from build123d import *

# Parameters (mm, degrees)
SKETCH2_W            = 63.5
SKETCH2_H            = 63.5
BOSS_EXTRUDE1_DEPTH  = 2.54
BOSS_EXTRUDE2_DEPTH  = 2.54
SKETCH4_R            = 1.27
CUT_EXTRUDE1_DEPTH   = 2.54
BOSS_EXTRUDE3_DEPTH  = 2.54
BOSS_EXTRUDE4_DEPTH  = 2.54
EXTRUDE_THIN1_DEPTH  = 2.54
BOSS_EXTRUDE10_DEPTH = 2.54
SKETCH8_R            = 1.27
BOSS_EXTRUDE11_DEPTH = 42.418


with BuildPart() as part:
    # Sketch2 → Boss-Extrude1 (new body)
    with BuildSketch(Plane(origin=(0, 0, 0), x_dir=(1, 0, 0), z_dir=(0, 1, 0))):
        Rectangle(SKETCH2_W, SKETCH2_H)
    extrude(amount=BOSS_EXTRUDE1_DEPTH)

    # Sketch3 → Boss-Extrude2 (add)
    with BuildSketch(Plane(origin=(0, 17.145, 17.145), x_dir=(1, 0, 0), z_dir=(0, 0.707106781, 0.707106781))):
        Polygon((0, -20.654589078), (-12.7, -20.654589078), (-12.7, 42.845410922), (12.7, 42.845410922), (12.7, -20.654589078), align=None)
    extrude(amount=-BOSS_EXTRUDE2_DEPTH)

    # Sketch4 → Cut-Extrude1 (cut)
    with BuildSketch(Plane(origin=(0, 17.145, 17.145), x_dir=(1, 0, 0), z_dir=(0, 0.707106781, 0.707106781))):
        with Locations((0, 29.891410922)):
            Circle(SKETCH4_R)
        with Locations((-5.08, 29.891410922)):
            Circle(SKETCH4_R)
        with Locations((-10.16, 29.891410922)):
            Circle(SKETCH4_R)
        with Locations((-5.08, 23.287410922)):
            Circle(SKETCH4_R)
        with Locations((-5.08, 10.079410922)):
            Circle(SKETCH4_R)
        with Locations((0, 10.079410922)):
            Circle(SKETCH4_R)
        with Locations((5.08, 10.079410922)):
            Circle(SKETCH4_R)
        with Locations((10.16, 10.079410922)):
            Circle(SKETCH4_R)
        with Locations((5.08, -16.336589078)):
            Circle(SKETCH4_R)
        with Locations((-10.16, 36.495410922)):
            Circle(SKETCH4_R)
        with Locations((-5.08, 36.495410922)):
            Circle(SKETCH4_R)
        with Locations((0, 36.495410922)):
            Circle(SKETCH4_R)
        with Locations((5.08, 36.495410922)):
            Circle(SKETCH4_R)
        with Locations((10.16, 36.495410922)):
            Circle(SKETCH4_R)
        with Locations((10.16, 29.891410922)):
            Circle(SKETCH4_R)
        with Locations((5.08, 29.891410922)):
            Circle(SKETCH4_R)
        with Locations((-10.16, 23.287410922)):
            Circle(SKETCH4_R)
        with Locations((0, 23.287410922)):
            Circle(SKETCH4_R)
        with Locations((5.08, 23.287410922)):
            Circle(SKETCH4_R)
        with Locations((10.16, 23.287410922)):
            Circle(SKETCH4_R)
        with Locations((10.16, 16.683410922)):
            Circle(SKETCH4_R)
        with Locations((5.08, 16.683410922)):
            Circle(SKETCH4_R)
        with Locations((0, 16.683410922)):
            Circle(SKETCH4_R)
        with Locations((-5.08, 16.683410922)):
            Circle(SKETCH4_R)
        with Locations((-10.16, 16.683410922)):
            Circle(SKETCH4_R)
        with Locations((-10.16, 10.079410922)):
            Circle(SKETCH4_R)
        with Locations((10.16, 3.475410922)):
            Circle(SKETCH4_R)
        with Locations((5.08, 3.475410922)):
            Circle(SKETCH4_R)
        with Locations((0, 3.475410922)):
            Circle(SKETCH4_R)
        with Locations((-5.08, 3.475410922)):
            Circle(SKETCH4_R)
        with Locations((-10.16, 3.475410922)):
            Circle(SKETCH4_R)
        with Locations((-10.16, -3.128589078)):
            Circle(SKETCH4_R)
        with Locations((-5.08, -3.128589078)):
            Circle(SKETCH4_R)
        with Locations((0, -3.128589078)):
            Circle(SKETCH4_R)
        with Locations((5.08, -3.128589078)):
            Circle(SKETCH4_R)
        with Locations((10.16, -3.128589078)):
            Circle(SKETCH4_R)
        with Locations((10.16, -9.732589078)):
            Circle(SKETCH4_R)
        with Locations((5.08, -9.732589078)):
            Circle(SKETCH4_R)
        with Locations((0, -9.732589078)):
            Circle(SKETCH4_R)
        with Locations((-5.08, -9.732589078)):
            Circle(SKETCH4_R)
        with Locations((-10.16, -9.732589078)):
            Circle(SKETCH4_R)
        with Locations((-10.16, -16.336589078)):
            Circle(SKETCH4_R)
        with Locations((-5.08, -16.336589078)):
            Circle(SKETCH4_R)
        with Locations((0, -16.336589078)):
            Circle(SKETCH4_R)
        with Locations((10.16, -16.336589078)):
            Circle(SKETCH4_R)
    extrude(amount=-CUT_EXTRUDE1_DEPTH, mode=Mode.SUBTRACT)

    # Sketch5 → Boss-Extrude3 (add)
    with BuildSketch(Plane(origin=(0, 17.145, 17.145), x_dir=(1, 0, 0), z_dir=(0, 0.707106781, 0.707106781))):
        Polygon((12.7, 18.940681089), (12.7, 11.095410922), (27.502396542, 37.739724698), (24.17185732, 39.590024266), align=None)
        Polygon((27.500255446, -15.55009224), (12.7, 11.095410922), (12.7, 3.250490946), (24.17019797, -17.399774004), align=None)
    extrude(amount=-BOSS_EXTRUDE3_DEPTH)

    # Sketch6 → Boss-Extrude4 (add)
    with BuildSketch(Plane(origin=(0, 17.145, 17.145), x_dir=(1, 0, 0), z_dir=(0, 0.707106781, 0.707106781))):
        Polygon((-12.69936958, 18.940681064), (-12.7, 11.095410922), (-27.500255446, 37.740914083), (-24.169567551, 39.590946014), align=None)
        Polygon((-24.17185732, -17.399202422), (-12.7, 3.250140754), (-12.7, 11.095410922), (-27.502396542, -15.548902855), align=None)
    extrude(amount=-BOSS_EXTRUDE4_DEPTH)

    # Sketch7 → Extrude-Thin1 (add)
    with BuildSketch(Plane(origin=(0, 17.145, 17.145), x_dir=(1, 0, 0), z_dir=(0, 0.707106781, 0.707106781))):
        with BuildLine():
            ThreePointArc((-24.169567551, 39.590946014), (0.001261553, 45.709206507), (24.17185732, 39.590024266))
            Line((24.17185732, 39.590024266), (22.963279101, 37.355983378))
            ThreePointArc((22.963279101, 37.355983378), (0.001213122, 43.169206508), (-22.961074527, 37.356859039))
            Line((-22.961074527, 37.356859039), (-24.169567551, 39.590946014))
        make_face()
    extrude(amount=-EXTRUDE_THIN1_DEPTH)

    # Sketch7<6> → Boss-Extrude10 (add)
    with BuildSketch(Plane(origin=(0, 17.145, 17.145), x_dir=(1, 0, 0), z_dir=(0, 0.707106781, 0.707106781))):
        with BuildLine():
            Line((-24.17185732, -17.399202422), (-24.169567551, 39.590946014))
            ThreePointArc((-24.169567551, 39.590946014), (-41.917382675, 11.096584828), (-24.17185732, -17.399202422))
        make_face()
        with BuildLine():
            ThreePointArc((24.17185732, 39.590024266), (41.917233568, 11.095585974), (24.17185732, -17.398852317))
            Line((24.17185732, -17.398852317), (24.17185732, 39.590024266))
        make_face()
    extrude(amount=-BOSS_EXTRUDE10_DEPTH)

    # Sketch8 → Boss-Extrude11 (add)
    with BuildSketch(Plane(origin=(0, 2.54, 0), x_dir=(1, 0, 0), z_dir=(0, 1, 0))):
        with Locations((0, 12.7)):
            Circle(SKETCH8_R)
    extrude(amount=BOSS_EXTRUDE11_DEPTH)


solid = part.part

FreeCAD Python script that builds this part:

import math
import FreeCAD as App
import Part
import Sketcher
Q = App.Units.Quantity

doc = App.newDocument("Part")
body = doc.addObject("PartDesign::Body", "Body")

sketch1 = body.newObject("Sketcher::SketchObject", "Sketch")
sketch1.AttachmentSupport = (doc.getObject("XZ_Plane"), [""])
sketch1.MapMode = "FlatFace"
sketch1.addGeometry([
    Part.LineSegment(App.Vector(-31.75, -31.75, 0), App.Vector(-31.75, 31.75, 0)),
    Part.LineSegment(App.Vector(-31.75, 31.75, 0), App.Vector(31.75, 31.75, 0)),
    Part.LineSegment(App.Vector(31.75, 31.75, 0), App.Vector(31.75, -31.75, 0)),
    Part.LineSegment(App.Vector(31.75, -31.75, 0), App.Vector(-31.75, -31.75, 0)),
], False)
sketch1.addConstraint([
    Sketcher.Constraint("Coincident", 0, 2, 1, 1),
    Sketcher.Constraint("Coincident", 1, 2, 2, 1),
    Sketcher.Constraint("Coincident", 2, 2, 3, 1),
    Sketcher.Constraint("Coincident", 3, 2, 0, 1),
    Sketcher.Constraint("Vertical", 0),
    Sketcher.Constraint("Horizontal", 1),
    Sketcher.Constraint("Vertical", 2),
    Sketcher.Constraint("Horizontal", 3),
    Sketcher.Constraint("Symmetric", 0, 2, 2, 2, -1, 1),
    Sketcher.Constraint("Equal", 3, 0),
    Sketcher.Constraint("DistanceX", 1, 1, 1, 2, Q("2.5 in")),
])
pad1 = body.newObject("PartDesign::Pad", "Pad")
pad1.Profile = sketch1
pad1.Length = Q("0.1 in")
pad1.Reversed = True

sketch2 = body.newObject("Sketcher::SketchObject", "Sketch001")
sketch2.Placement = App.Placement(App.Vector(0, 17.145, 17.145), App.Rotation(App.Vector(1, 0, 0), App.Vector(0, 0.707106781, -0.707106781), App.Vector(0, 0.707106781, 0.707106781), "ZXY"))
sketch2.addGeometry([
    Part.LineSegment(App.Vector(-12.7, -20.654589, 0), App.Vector(12.7, -20.654589, 0)),
    Part.LineSegment(App.Vector(12.7, -20.654589, 0), App.Vector(12.7, 42.845411, 0)),
    Part.LineSegment(App.Vector(12.7, 42.845411, 0), App.Vector(-12.7, 42.845411, 0)),
    Part.LineSegment(App.Vector(-12.7, 42.845411, 0), App.Vector(-12.7, -20.654589, 0)),
], False)
sketch2.addConstraint([
    Sketcher.Constraint("Coincident", 0, 2, 1, 1),
    Sketcher.Constraint("Coincident", 1, 2, 2, 1),
    Sketcher.Constraint("Coincident", 2, 2, 3, 1),
    Sketcher.Constraint("Coincident", 3, 2, 0, 1),
    Sketcher.Constraint("Horizontal", 0),
    Sketcher.Constraint("Vertical", 1),
    Sketcher.Constraint("Horizontal", 2),
    Sketcher.Constraint("Vertical", 3),
    Sketcher.Constraint("DistanceX", 0, 1, 0, 2, Q("1 in")),
    Sketcher.Constraint("DistanceY", 1, 1, 1, 2, Q("2.5 in")),
    Sketcher.Constraint("DistanceX", -1, 1, 0, 2, Q("0.5 in")),
    Sketcher.Constraint("DistanceY", 0, 2, -1, 1, 20.654589),
])
pad2 = body.newObject("PartDesign::Pad", "Pad001")
pad2.Profile = sketch2
pad2.Length = Q("0.1 in")
pad2.Reversed = True

sketch3 = body.newObject("Sketcher::SketchObject", "Sketch002")
sketch3.Placement = App.Placement(App.Vector(0, 17.145, 17.145), App.Rotation(App.Vector(1, 0, 0), App.Vector(0, 0.707106781, -0.707106781), App.Vector(0, 0.707106781, 0.707106781), "ZXY"))
sketch3.addGeometry([
    Part.Circle(App.Vector(0, 29.891411, 0), App.Vector(0, 0, 1), 1.27),
    Part.Circle(App.Vector(-5.08, 29.891411, 0), App.Vector(0, 0, 1), 1.27),
    Part.Circle(App.Vector(-10.16, 29.891411, 0), App.Vector(0, 0, 1), 1.27),
    Part.Circle(App.Vector(-5.08, 23.287411, 0), App.Vector(0, 0, 1), 1.27),
    Part.Circle(App.Vector(-5.08, 10.079411, 0), App.Vector(0, 0, 1), 1.27),
    Part.Circle(App.Vector(0, 10.079411, 0), App.Vector(0, 0, 1), 1.27),
    Part.Circle(App.Vector(5.08, 10.079411, 0), App.Vector(0, 0, 1), 1.27),
    Part.Circle(App.Vector(10.16, 10.079411, 0), App.Vector(0, 0, 1), 1.27),
    Part.Circle(App.Vector(5.08, -16.336589, 0), App.Vector(0, 0, 1), 1.27),
    Part.Circle(App.Vector(-10.16, 36.495411, 0), App.Vector(0, 0, 1), 1.27),
    Part.Circle(App.Vector(-5.08, 36.495411, 0), App.Vector(0, 0, 1), 1.27),
    Part.Circle(App.Vector(0, 36.495411, 0), App.Vector(0, 0, 1), 1.27),
    Part.Circle(App.Vector(5.08, 36.495411, 0), App.Vector(0, 0, 1), 1.27),
    Part.Circle(App.Vector(10.16, 36.495411, 0), App.Vector(0, 0, 1), 1.27),
    Part.Circle(App.Vector(10.16, 29.891411, 0), App.Vector(0, 0, 1), 1.27),
    Part.Circle(App.Vector(5.08, 29.891411, 0), App.Vector(0, 0, 1), 1.27),
    Part.Circle(App.Vector(-10.16, 23.287411, 0), App.Vector(0, 0, 1), 1.27),
    Part.Circle(App.Vector(0, 23.287411, 0), App.Vector(0, 0, 1), 1.27),
    Part.Circle(App.Vector(5.08, 23.287411, 0), App.Vector(0, 0, 1), 1.27),
    Part.Circle(App.Vector(10.16, 23.287411, 0), App.Vector(0, 0, 1), 1.27),
    Part.Circle(App.Vector(10.16, 16.683411, 0), App.Vector(0, 0, 1), 1.27),
    Part.Circle(App.Vector(5.08, 16.683411, 0), App.Vector(0, 0, 1), 1.27),
    Part.Circle(App.Vector(0, 16.683411, 0), App.Vector(0, 0, 1), 1.27),
    Part.Circle(App.Vector(-5.08, 16.683411, 0), App.Vector(0, 0, 1), 1.27),
    Part.Circle(App.Vector(-10.16, 16.683411, 0), App.Vector(0, 0, 1), 1.27),
    Part.Circle(App.Vector(-10.16, 10.079411, 0), App.Vector(0, 0, 1), 1.27),
    Part.Circle(App.Vector(10.16, 3.475411, 0), App.Vector(0, 0, 1), 1.27),
    Part.Circle(App.Vector(5.08, 3.475411, 0), App.Vector(0, 0, 1), 1.27),
    Part.Circle(App.Vector(0, 3.475411, 0), App.Vector(0, 0, 1), 1.27),
    Part.Circle(App.Vector(-5.08, 3.475411, 0), App.Vector(0, 0, 1), 1.27),
    Part.Circle(App.Vector(-10.16, 3.475411, 0), App.Vector(0, 0, 1), 1.27),
    Part.Circle(App.Vector(-10.16, -3.128589, 0), App.Vector(0, 0, 1), 1.27),
    Part.Circle(App.Vector(-5.08, -3.128589, 0), App.Vector(0, 0, 1), 1.27),
    Part.Circle(App.Vector(0, -3.128589, 0), App.Vector(0, 0, 1), 1.27),
    Part.Circle(App.Vector(5.08, -3.128589, 0), App.Vector(0, 0, 1), 1.27),
    Part.Circle(App.Vector(10.16, -3.128589, 0), App.Vector(0, 0, 1), 1.27),
    Part.Circle(App.Vector(10.16, -9.732589, 0), App.Vector(0, 0, 1), 1.27),
    Part.Circle(App.Vector(5.08, -9.732589, 0), App.Vector(0, 0, 1), 1.27),
    Part.Circle(App.Vector(0, -9.732589, 0), App.Vector(0, 0, 1), 1.27),
    Part.Circle(App.Vector(-5.08, -9.732589, 0), App.Vector(0, 0, 1), 1.27),
    Part.Circle(App.Vector(-10.16, -9.732589, 0), App.Vector(0, 0, 1), 1.27),
    Part.Circle(App.Vector(-10.16, -16.336589, 0), App.Vector(0, 0, 1), 1.27),
    Part.Circle(App.Vector(-5.08, -16.336589, 0), App.Vector(0, 0, 1), 1.27),
    Part.Circle(App.Vector(0, -16.336589, 0), App.Vector(0, 0, 1), 1.27),
    Part.Circle(App.Vector(10.16, -16.336589, 0), App.Vector(0, 0, 1), 1.27),
], False)
sketch3.addConstraint([
    Sketcher.Constraint("Equal", 0, 1),
    Sketcher.Constraint("Equal", 1, 2),
    Sketcher.Constraint("Equal", 2, 3),
    Sketcher.Constraint("Equal", 3, 4),
    Sketcher.Constraint("Equal", 4, 5),
    Sketcher.Constraint("Equal", 5, 6),
    Sketcher.Constraint("Equal", 6, 7),
    Sketcher.Constraint("Equal", 7, 8),
    Sketcher.Constraint("Equal", 8, 9),
    Sketcher.Constraint("Equal", 9, 10),
    Sketcher.Constraint("Equal", 10, 11),
    Sketcher.Constraint("Equal", 11, 12),
    Sketcher.Constraint("Equal", 12, 13),
    Sketcher.Constraint("Equal", 13, 14),
    Sketcher.Constraint("Equal", 14, 15),
    Sketcher.Constraint("Equal", 15, 16),
    Sketcher.Constraint("Equal", 16, 17),
    Sketcher.Constraint("Equal", 17, 18),
    Sketcher.Constraint("Equal", 18, 19),
    Sketcher.Constraint("Equal", 19, 20),
    Sketcher.Constraint("Equal", 20, 21),
    Sketcher.Constraint("Equal", 21, 22),
    Sketcher.Constraint("Equal", 22, 23),
    Sketcher.Constraint("Equal", 23, 24),
    Sketcher.Constraint("Equal", 24, 25),
    Sketcher.Constraint("Equal", 25, 26),
    Sketcher.Constraint("Equal", 26, 27),
    Sketcher.Constraint("Equal", 27, 28),
    Sketcher.Constraint("Equal", 28, 29),
    Sketcher.Constraint("Equal", 29, 30),
    Sketcher.Constraint("Equal", 30, 31),
    Sketcher.Constraint("Equal", 31, 32),
    Sketcher.Constraint("Equal", 32, 33),
    Sketcher.Constraint("Equal", 33, 34),
    Sketcher.Constraint("Equal", 34, 35),
    Sketcher.Constraint("Equal", 35, 36),
    Sketcher.Constraint("Equal", 36, 37),
    Sketcher.Constraint("Equal", 37, 38),
    Sketcher.Constraint("Equal", 38, 39),
    Sketcher.Constraint("Equal", 39, 40),
    Sketcher.Constraint("Equal", 40, 41),
    Sketcher.Constraint("Equal", 41, 42),
    Sketcher.Constraint("Equal", 42, 43),
    Sketcher.Constraint("Equal", 43, 44),
    Sketcher.Constraint("Symmetric", 4, 3, 6, 3, -2),
    Sketcher.Constraint("Symmetric", 10, 3, 12, 3, -2),
    Sketcher.Constraint("Symmetric", 9, 3, 13, 3, -2),
    Sketcher.Constraint("Symmetric", 2, 3, 14, 3, -2),
    Sketcher.Constraint("Symmetric", 1, 3, 15, 3, -2),
    Sketcher.Constraint("Symmetric", 3, 3, 18, 3, -2),
    Sketcher.Constraint("Symmetric", 16, 3, 19, 3, -2),
    Sketcher.Constraint("Symmetric", 21, 3, 23, 3, -2),
    Sketcher.Constraint("Symmetric", 20, 3, 24, 3, -2),
    Sketcher.Constraint("Symmetric", 7, 3, 25, 3, -2),
    Sketcher.Constraint("Symmetric", 27, 3, 29, 3, -2),
    Sketcher.Constraint("Symmetric", 26, 3, 30, 3, -2),
    Sketcher.Constraint("Symmetric", 32, 3, 34, 3, -2),
    Sketcher.Constraint("Symmetric", 31, 3, 35, 3, -2),
    Sketcher.Constraint("Symmetric", 37, 3, 39, 3, -2),
    Sketcher.Constraint("Symmetric", 36, 3, 40, 3, -2),
    Sketcher.Constraint("Symmetric", 8, 3, 42, 3, -2),
    Sketcher.Constraint("Symmetric", 41, 3, 44, 3, -2),
    Sketcher.Constraint("PointOnObject", 0, 3, -2),
    Sketcher.Constraint("PointOnObject", 5, 3, -2),
    Sketcher.Constraint("PointOnObject", 11, 3, -2),
    Sketcher.Constraint("PointOnObject", 17, 3, -2),
    Sketcher.Constraint("PointOnObject", 22, 3, -2),
    Sketcher.Constraint("PointOnObject", 28, 3, -2),
    Sketcher.Constraint("PointOnObject", 33, 3, -2),
    Sketcher.Constraint("PointOnObject", 38, 3, -2),
    Sketcher.Constraint("PointOnObject", 43, 3, -2),
    Sketcher.Constraint("Horizontal", 0, 3, 1, 3),
    Sketcher.Constraint("Horizontal", 1, 3, 2, 3),
    Sketcher.Constraint("Horizontal", 4, 3, 5, 3),
    Sketcher.Constraint("Horizontal", 6, 3, 7, 3),
    Sketcher.Constraint("Horizontal", 9, 3, 10, 3),
    Sketcher.Constraint("Horizontal", 10, 3, 11, 3),
    Sketcher.Constraint("Horizontal", 3, 3, 16, 3),
    Sketcher.Constraint("Horizontal", 16, 3, 17, 3),
    Sketcher.Constraint("Horizontal", 20, 3, 21, 3),
    Sketcher.Constraint("Horizontal", 21, 3, 22, 3),
    Sketcher.Constraint("Horizontal", 26, 3, 27, 3),
    Sketcher.Constraint("Horizontal", 27, 3, 28, 3),
    Sketcher.Constraint("Horizontal", 31, 3, 32, 3),
    Sketcher.Constraint("Horizontal", 32, 3, 33, 3),
    Sketcher.Constraint("Horizontal", 36, 3, 37, 3),
    Sketcher.Constraint("Horizontal", 37, 3, 38, 3),
    Sketcher.Constraint("Horizontal", 8, 3, 41, 3),
    Sketcher.Constraint("Horizontal", 42, 3, 43, 3),
    Sketcher.Constraint("Vertical", 1, 3, 3, 3),
    Sketcher.Constraint("Vertical", 3, 3, 4, 3),
    Sketcher.Constraint("Vertical", 6, 3, 8, 3),
    Sketcher.Constraint("Vertical", 2, 3, 9, 3),
    Sketcher.Constraint("Vertical", 4, 3, 10, 3),
    Sketcher.Constraint("Vertical", 7, 3, 13, 3),
    Sketcher.Constraint("Vertical", 9, 3, 16, 3),
    Sketcher.Constraint("Vertical", 19, 3, 20, 3),
    Sketcher.Constraint("Vertical", 18, 3, 21, 3),
    Sketcher.Constraint("Vertical", 20, 3, 26, 3),
    Sketcher.Constraint("Vertical", 21, 3, 27, 3),
    Sketcher.Constraint("Vertical", 30, 3, 31, 3),
    Sketcher.Constraint("Vertical", 29, 3, 32, 3),
    Sketcher.Constraint("Vertical", 35, 3, 36, 3),
    Sketcher.Constraint("Vertical", 34, 3, 37, 3),
    Sketcher.Constraint("Vertical", 40, 3, 41, 3),
    Sketcher.Constraint("Diameter", 0, Q("0.1 in")),
    Sketcher.Constraint("DistanceX", 1, 3, -1, 1, Q("0.2 in")),
    Sketcher.Constraint("DistanceX", 2, 3, -1, 1, Q("0.4 in")),
    Sketcher.Constraint("DistanceY", 3, 3, 1, 3, Q("0.26 in")),
    Sketcher.Constraint("DistanceY", 4, 3, 3, 3, Q("0.52 in")),
    Sketcher.Constraint("DistanceY", 8, 3, 6, 3, Q("1.04 in")),
    Sketcher.Constraint("DistanceY", 2, 3, 9, 3, Q("0.26 in")),
    Sketcher.Constraint("DistanceY", 7, 3, 20, 3, Q("0.26 in")),
    Sketcher.Constraint("DistanceY", 26, 3, 7, 3, Q("0.26 in")),
    Sketcher.Constraint("DistanceY", 31, 3, 30, 3, Q("0.26 in")),
    Sketcher.Constraint("DistanceY", 36, 3, 35, 3, Q("0.26 in")),
    Sketcher.Constraint("DistanceY", -1, 1, 0, 3, 29.891411),
])
pocket1 = body.newObject("PartDesign::Pocket", "Pocket")
pocket1.Profile = sketch3
pocket1.Length = Q("0.1 in")

sketch4 = body.newObject("Sketcher::SketchObject", "Sketch003")
sketch4.Placement = App.Placement(App.Vector(0, 17.145, 17.145), App.Rotation(App.Vector(1, 0, 0), App.Vector(0, 0.707106781, -0.707106781), App.Vector(0, 0.707106781, 0.707106781), "ZXY"))
sketch4.addGeometry([
    Part.LineSegment(App.Vector(12.7, 18.940681, 0), App.Vector(12.7, 11.095411, 0)),
    Part.LineSegment(App.Vector(12.7, 11.095411, 0), App.Vector(27.502397, 37.739725, 0)),
    Part.LineSegment(App.Vector(27.502397, 37.739725, 0), App.Vector(24.171857, 39.590024, 0)),
    Part.LineSegment(App.Vector(24.171857, 39.590024, 0), App.Vector(12.7, 18.940681, 0)),
    Part.LineSegment(App.Vector(27.500255, -15.550092, 0), App.Vector(12.7, 11.095411, 0)),
    Part.LineSegment(App.Vector(12.7, 11.095411, 0), App.Vector(12.7, 3.250491, 0)),
    Part.LineSegment(App.Vector(12.7, 3.250491, 0), App.Vector(24.170198, -17.399774, 0)),
    Part.LineSegment(App.Vector(24.170198, -17.399774, 0), App.Vector(27.500255, -15.550092, 0)),
], False)
sketch4.addConstraint([
    Sketcher.Constraint("Coincident", 0, 2, 1, 1),
    Sketcher.Constraint("Coincident", 1, 2, 2, 1),
    Sketcher.Constraint("Coincident", 2, 2, 3, 1),
    Sketcher.Constraint("Coincident", 3, 2, 0, 1),
    Sketcher.Constraint("Coincident", 4, 2, 5, 1),
    Sketcher.Constraint("Coincident", 5, 2, 6, 1),
    Sketcher.Constraint("Coincident", 6, 2, 7, 1),
    Sketcher.Constraint("Coincident", 7, 2, 4, 1),
    Sketcher.Constraint("Vertical", 0),
    Sketcher.Constraint("Vertical", 5),
    Sketcher.Constraint("Coincident", 4, 2, 0, 2),
    Sketcher.Constraint("Perpendicular", 1, 2),
    Sketcher.Constraint("Perpendicular", 2, 3),
    Sketcher.Constraint("Parallel", 4, 6),
    Sketcher.Constraint("Perpendicular", 6, 7),
    Sketcher.Constraint("Equal", 1, 4),
    Sketcher.Constraint("Equal", 3, 6),
    Sketcher.Constraint("Distance", 1, Q("1.2 in")),
    Sketcher.Constraint("DistanceX", -1, 1, 0, 2, Q("0.5 in")),
    Sketcher.Constraint("Distance", 2, Q("0.15 in")),
    Sketcher.Constraint("Distance", 3, Q("0.93 in")),
    Sketcher.Constraint("Angle", 4, Q("119.05 deg")),
    Sketcher.Constraint("DistanceY", -1, 1, 0, 2, 11.095411),
])
pad3 = body.newObject("PartDesign::Pad", "Pad002")
pad3.Profile = sketch4
pad3.Length = Q("0.1 in")
pad3.Reversed = True

sketch5 = body.newObject("Sketcher::SketchObject", "Sketch004")
sketch5.Placement = App.Placement(App.Vector(0, 17.145, 17.145), App.Rotation(App.Vector(1, 0, 0), App.Vector(0, 0.707106781, -0.707106781), App.Vector(0, 0.707106781, 0.707106781), "ZXY"))
sketch5.addGeometry([
    Part.LineSegment(App.Vector(-12.7, 11.095411, 0), App.Vector(-12.69937, 18.940681, 0)),
    Part.LineSegment(App.Vector(-12.69937, 18.940681, 0), App.Vector(-24.169568, 39.590946, 0)),
    Part.LineSegment(App.Vector(-24.169568, 39.590946, 0), App.Vector(-27.500255, 37.740914, 0)),
    Part.LineSegment(App.Vector(-27.500255, 37.740914, 0), App.Vector(-12.7, 11.095411, 0)),
    Part.LineSegment(App.Vector(-24.171857, -17.399202, 0), App.Vector(-12.7, 3.250141, 0)),
    Part.LineSegment(App.Vector(-12.7, 3.250141, 0), App.Vector(-12.7, 11.095411, 0)),
    Part.LineSegment(App.Vector(-12.7, 11.095411, 0), App.Vector(-27.502397, -15.548903, 0)),
    Part.LineSegment(App.Vector(-27.502397, -15.548903, 0), App.Vector(-24.171857, -17.399202, 0)),
], False)
sketch5.addConstraint([
    Sketcher.Constraint("Coincident", 0, 2, 1, 1),
    Sketcher.Constraint("Coincident", 1, 2, 2, 1),
    Sketcher.Constraint("Coincident", 2, 2, 3, 1),
    Sketcher.Constraint("Coincident", 3, 2, 0, 1),
    Sketcher.Constraint("Coincident", 4, 2, 5, 1),
    Sketcher.Constraint("Coincident", 5, 2, 6, 1),
    Sketcher.Constraint("Coincident", 6, 2, 7, 1),
    Sketcher.Constraint("Coincident", 7, 2, 4, 1),
    Sketcher.Constraint("Vertical", 5),
    Sketcher.Constraint("Coincident", 5, 2, 3, 2),
    Sketcher.Constraint("Perpendicular", 1, 2),
    Sketcher.Constraint("Perpendicular", 2, 3),
    Sketcher.Constraint("Parallel", 4, 6),
    Sketcher.Constraint("Perpendicular", 6, 7),
    Sketcher.Constraint("Equal", 1, 4),
    Sketcher.Constraint("Equal", 3, 6),
    Sketcher.Constraint("Equal", 2, 7),
    Sketcher.Constraint("Distance", 3, Q("1.2 in")),
    Sketcher.Constraint("DistanceX", 3, 2, -1, 1, Q("0.5 in")),
    Sketcher.Constraint("Distance", 1, Q("0.93 in")),
    Sketcher.Constraint("Distance", 2, Q("0.15 in")),
    Sketcher.Constraint("Angle", 1, Q("119.05 deg")),
    Sketcher.Constraint("DistanceY", -1, 1, 0, 2, 18.940681),
])
pad4 = body.newObject("PartDesign::Pad", "Pad003")
pad4.Profile = sketch5
pad4.Length = Q("0.1 in")
pad4.Reversed = True

sketch6 = body.newObject("Sketcher::SketchObject", "Sketch005")
sketch6.Placement = App.Placement(App.Vector(0, 17.145, 17.145), App.Rotation(App.Vector(1, 0, 0), App.Vector(0, 0.707106781, -0.707106781), App.Vector(0, 0.707106781, 0.707106781), "ZXY"))
sketch6.addGeometry([
    Part.ArcOfCircle(Part.Circle(App.Vector(0.000293, -5.090793, 0), App.Vector(0, 0, 1), 50.8), math.radians(61.587364), math.radians(118.410451)),
    Part.LineSegment(App.Vector(-24.169568, 39.590946, 0), App.Vector(-22.961075, 37.356859, 0)),
    Part.ArcOfCircle(Part.Circle(App.Vector(0.000293, -5.090793, 0), App.Vector(0, 0, 1), 48.26), math.radians(61.587364), math.radians(118.410451)),
    Part.LineSegment(App.Vector(22.963279, 37.355983, 0), App.Vector(24.171857, 39.590024, 0)),
], False)
sketch6.addConstraint([
    Sketcher.Constraint("Coincident", 0, 2, 1, 1),
    Sketcher.Constraint("Coincident", 1, 2, 2, 2),
    Sketcher.Constraint("Coincident", 2, 1, 3, 1),
    Sketcher.Constraint("Coincident", 3, 2, 0, 1),
    Sketcher.Constraint("Coincident", 2, 3, 0, 3),
    Sketcher.Constraint("Radius", 0, Q("2 in")),
    Sketcher.Constraint("Radius", 2, Q("1.9 in")),
    Sketcher.Constraint("DistanceY", -1, 1, 1, 2, 37.356859),
    Sketcher.Constraint("DistanceX", -1, 1, 2, 1, 22.963279),
    Sketcher.Constraint("DistanceX", 0, 2, 2, 3, 24.16986),
    Sketcher.Constraint("DistanceX", 2, 1, 3, 2, 1.208578),
    Sketcher.Constraint("DistanceX", 1, 2, 3, 2, 47.132932),
    Sketcher.Constraint("DistanceY", 3, 2, 0, 2, 0.000922),
])
pad5 = body.newObject("PartDesign::Pad", "Pad004")
pad5.Profile = sketch6
pad5.Length = Q("0.1 in")
pad5.Reversed = True

sketch7 = body.newObject("Sketcher::SketchObject", "Sketch006")
sketch7.Placement = App.Placement(App.Vector(0, 17.145, 17.145), App.Rotation(App.Vector(1, 0, 0), App.Vector(0, 0.707106781, -0.707106781), App.Vector(0, 0.707106781, 0.707106781), "ZXY"))
sketch7.addGeometry([
    Part.LineSegment(App.Vector(-24.171857, -17.399202, 0), App.Vector(-24.169568, 39.590946, 0)),
    Part.ArcOfCircle(Part.Circle(App.Vector(-10.167383, 11.095309, 0), App.Vector(0, 0, 1), 31.75), math.radians(116.168577), math.radians(243.826819)),
    Part.ArcOfCircle(Part.Circle(App.Vector(10.167234, 11.095586, 0), App.Vector(0, 0, 1), 31.75), math.radians(-63.826519), math.radians(63.826519)),
    Part.LineSegment(App.Vector(24.171857, 39.590024, 0), App.Vector(24.171857, -17.398852, 0)),
], False)
sketch7.addConstraint([
    Sketcher.Constraint("Coincident", 0, 1, 1, 2),
    Sketcher.Constraint("Coincident", 1, 1, 0, 2),
    Sketcher.Constraint("Coincident", 2, 1, 3, 2),
    Sketcher.Constraint("Coincident", 3, 1, 2, 2),
    Sketcher.Constraint("Vertical", 3),
    Sketcher.Constraint("Equal", 1, 2),
    Sketcher.Constraint("Radius", 1, Q("1.25 in")),
    Sketcher.Constraint("DistanceX", 1, 1, 2, 3, 34.336801),
    Sketcher.Constraint("DistanceY", 2, 1, 1, 1, 56.989798),
    Sketcher.Constraint("Distance", 0, 56.990148),
    Sketcher.Constraint("DistanceY", 3, 2, 3, 1, 56.988877),
    Sketcher.Constraint("DistanceY", -1, 1, 1, 3, 11.095309),
    Sketcher.Constraint("DistanceY", 0, 1, 1, 3, 28.494512),
    Sketcher.Constraint("DistanceX", 1, 3, -1, 1, 10.167383),
])
pad6 = body.newObject("PartDesign::Pad", "Pad005")
pad6.Profile = sketch7
pad6.Length = Q("0.1 in")
pad6.Reversed = True

sketch8 = body.newObject("Sketcher::SketchObject", "Sketch007")
sketch8.AttachmentSupport = (doc.getObject("XZ_Plane"), [""])
sketch8.MapMode = "FlatFace"
sketch8.AttachmentOffset = App.Placement(App.Vector(0, 0, -0.1 * 25.4), App.Rotation())
sketch8.addGeometry(Part.Circle(App.Vector(0, -12.7, 0), App.Vector(0, 0, 1), 1.27), False)
sketch8.addConstraint([
    Sketcher.Constraint("PointOnObject", 0, 3, -2),
    Sketcher.Constraint("Diameter", 0, Q("0.1 in")),
    Sketcher.Constraint("DistanceY", 0, 3, -1, 1, Q("0.5 in")),
])
pad7 = body.newObject("PartDesign::Pad", "Pad006")
pad7.Profile = sketch8
pad7.Length = Q("1.67 in")
pad7.Reversed = True

doc.recompute()
